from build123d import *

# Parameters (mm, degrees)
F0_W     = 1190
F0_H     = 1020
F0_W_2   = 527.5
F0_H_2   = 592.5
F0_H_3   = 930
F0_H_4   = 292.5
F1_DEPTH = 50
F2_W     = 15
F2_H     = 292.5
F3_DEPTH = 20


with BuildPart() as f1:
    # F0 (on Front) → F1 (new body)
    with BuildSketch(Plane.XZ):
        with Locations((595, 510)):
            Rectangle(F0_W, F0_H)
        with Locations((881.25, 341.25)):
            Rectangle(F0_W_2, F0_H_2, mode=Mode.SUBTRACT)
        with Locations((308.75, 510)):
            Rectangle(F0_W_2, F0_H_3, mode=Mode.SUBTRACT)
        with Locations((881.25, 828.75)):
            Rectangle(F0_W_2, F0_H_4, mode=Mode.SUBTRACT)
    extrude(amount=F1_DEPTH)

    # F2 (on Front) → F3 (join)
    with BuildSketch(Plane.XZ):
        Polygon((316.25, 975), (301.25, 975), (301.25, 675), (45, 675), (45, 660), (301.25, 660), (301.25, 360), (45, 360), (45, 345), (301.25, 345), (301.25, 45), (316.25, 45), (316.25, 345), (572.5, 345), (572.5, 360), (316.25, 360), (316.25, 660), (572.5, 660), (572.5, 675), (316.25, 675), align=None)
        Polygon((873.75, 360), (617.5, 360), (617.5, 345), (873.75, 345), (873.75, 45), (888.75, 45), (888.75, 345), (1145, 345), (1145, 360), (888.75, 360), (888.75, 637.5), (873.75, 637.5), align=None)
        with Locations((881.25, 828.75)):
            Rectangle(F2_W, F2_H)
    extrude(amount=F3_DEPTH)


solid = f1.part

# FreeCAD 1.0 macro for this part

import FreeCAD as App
import Part
import Sketcher
Q = App.Units.Quantity


def add_polygon(sketch, points):
    """Adds a closed chain of lines whose ends are joined by coincident constraints."""
    first, n = sketch.GeometryCount, len(points)
    for a, b in zip(points, points[1:] + points[:1]):
        sketch.addGeometry(Part.LineSegment(App.Vector(*a, 0), App.Vector(*b, 0)), False)
    for i in range(n):
        sketch.addConstraint(Sketcher.Constraint("Coincident", first + i, 2, first + (i + 1) % n, 1))

doc = App.newDocument("Part")
body = doc.addObject("PartDesign::Body", "Body")

# Sketch on XZ plane
sketch1 = body.newObject("Sketcher::SketchObject", "Sketch")
sketch1.AttachmentSupport = (doc.getObject("XZ_Plane"), [""])
sketch1.MapMode = "FlatFace"
add_polygon(sketch1, [(0, 1020), (0, 0), (1190, 0), (1190, 1020)])  # lines 0-3
add_polygon(sketch1, [(1145, 45), (617.5, 45), (617.5, 637.5), (1145, 637.5)])  # lines 4-7
add_polygon(sketch1, [(572.5, 45), (45, 45), (45, 975), (572.5, 975)])  # lines 8-11
add_polygon(sketch1, [(1145, 682.5), (617.5, 682.5), (617.5, 975), (1145, 975)])  # lines 12-15
sketch1.addConstraint(Sketcher.Constraint("Vertical", 0))
sketch1.addConstraint(Sketcher.Constraint("Horizontal", 1))
sketch1.addConstraint(Sketcher.Constraint("Vertical", 2))
sketch1.addConstraint(Sketcher.Constraint("Horizontal", 3))
sketch1.addConstraint(Sketcher.Constraint("Horizontal", 4))
sketch1.addConstraint(Sketcher.Constraint("Vertical", 5))
sketch1.addConstraint(Sketcher.Constraint("Horizontal", 6))
sketch1.addConstraint(Sketcher.Constraint("Vertical", 7))
sketch1.addConstraint(Sketcher.Constraint("Horizontal", 8))
sketch1.addConstraint(Sketcher.Constraint("Vertical", 9))
sketch1.addConstraint(Sketcher.Constraint("Horizontal", 10))
sketch1.addConstraint(Sketcher.Constraint("Vertical", 11))
sketch1.addConstraint(Sketcher.Constraint("Horizontal", 12))
sketch1.addConstraint(Sketcher.Constraint("Vertical", 13))
sketch1.addConstraint(Sketcher.Constraint("Horizontal", 14))
sketch1.addConstraint(Sketcher.Constraint("Vertical", 15))
sketch1.addConstraint(Sketcher.Constraint("Coincident", 0, 2, -1, 1))
sketch1.addConstraint(Sketcher.Constraint("Horizontal", 7, 2, 8, 2))
sketch1.addConstraint(Sketcher.Constraint("Horizontal", 10, 2, 13, 2))
sketch1.addConstraint(Sketcher.Constraint("Vertical", 5, 2, 12, 2))
sketch1.addConstraint(Sketcher.Constraint("Vertical", 7, 2, 14, 2))
sketch1.addConstraint(Sketcher.Constraint("Equal", 6, 8))
sketch1.addConstraint(Sketcher.Constraint("DistanceX", 1, 1, 1, 2, Q("1190 mm")))
sketch1.addConstraint(Sketcher.Constraint("DistanceY", 0, 2, 0, 1, Q("1020 mm")))
sketch1.addConstraint(Sketcher.Constraint("DistanceY", 9, 1, 9, 2, Q("930 mm")))
sketch1.addConstraint(Sketcher.Constraint("DistanceX", 4, 2, 4, 1, Q("527.5 mm")))
sketch1.addConstraint(Sketcher.Constraint("DistanceY", 5, 1, 5, 2, Q("592.5 mm")))
sketch1.addConstraint(Sketcher.Constraint("DistanceY", 13, 1, 13, 2, Q("292.5 mm")))
sketch1.addConstraint(Sketcher.Constraint("DistanceY", -1, 1, 4, 2, Q("45 mm")))
sketch1.addConstraint(Sketcher.Constraint("DistanceX", -1, 1, 6, 2, Q("1145 mm")))
sketch1.addConstraint(Sketcher.Constraint("DistanceX", -1, 1, 8, 2, Q("45 mm")))
pad1 = body.newObject("PartDesign::Pad", "Pad")
pad1.Profile = sketch1
pad1.Length = 50

# Sketch on XZ plane
sketch2 = body.newObject("Sketcher::SketchObject", "Sketch001")
sketch2.AttachmentSupport = (doc.getObject("XZ_Plane"), [""])
sketch2.MapMode = "FlatFace"
add_polygon(sketch2, [(316.25, 975), (301.25, 975), (301.25, 675), (45, 675), (45, 660), (301.25, 660), (301.25, 360), (45, 360), (45, 345), (301.25, 345), (301.25, 45), (316.25, 45), (316.25, 345), (572.5, 345), (572.5, 360), (316.25, 360), (316.25, 660), (572.5, 660), (572.5, 675), (316.25, 675)])  # lines 0-19
add_polygon(sketch2, [(873.75, 360), (617.5, 360), (617.5, 345), (873.75, 345), (873.75, 45), (888.75, 45), (888.75, 345), (1145, 345), (1145, 360), (888.75, 360), (888.75, 637.5), (873.75, 637.5)])  # lines 20-31
add_polygon(sketch2, [(873.75, 975), (873.75, 682.5), (888.75, 682.5), (888.75, 975)])  # lines 32-35
sketch2.addConstraint(Sketcher.Constraint("Horizontal", 0))
sketch2.addConstraint(Sketcher.Constraint("Vertical", 1))
sketch2.addConstraint(Sketcher.Constraint("Horizontal", 2))
sketch2.addConstraint(Sketcher.Constraint("Vertical", 3))
sketch2.addConstraint(Sketcher.Constraint("Horizontal", 4))
sketch2.addConstraint(Sketcher.Constraint("Vertical", 5))
sketch2.addConstraint(Sketcher.Constraint("Horizontal", 6))
sketch2.addConstraint(Sketcher.Constraint("Vertical", 7))
sketch2.addConstraint(Sketcher.Constraint("Horizontal", 8))
sketch2.addConstraint(Sketcher.Constraint("Vertical", 9))
sketch2.addConstraint(Sketcher.Constraint("Horizontal", 10))
sketch2.addConstraint(Sketcher.Constraint("Vertical", 11))
sketch2.addConstraint(Sketcher.Constraint("Horizontal", 12))
sketch2.addConstraint(Sketcher.Constraint("Vertical", 13))
sketch2.addConstraint(Sketcher.Constraint("Horizontal", 14))
sketch2.addConstraint(Sketcher.Constraint("Vertical", 15))
sketch2.addConstraint(Sketcher.Constraint("Horizontal", 16))
sketch2.addConstraint(Sketcher.Constraint("Vertical", 17))
sketch2.addConstraint(Sketcher.Constraint("Horizontal", 18))
sketch2.addConstraint(Sketcher.Constraint("Vertical", 19))
sketch2.addConstraint(Sketcher.Constraint("Horizontal", 20))
sketch2.addConstraint(Sketcher.Constraint("Vertical", 21))
sketch2.addConstraint(Sketcher.Constraint("Horizontal", 22))
sketch2.addConstraint(Sketcher.Constraint("Vertical", 23))
sketch2.addConstraint(Sketcher.Constraint("Horizontal", 24))
sketch2.addConstraint(Sketcher.Constraint("Vertical", 25))
sketch2.addConstraint(Sketcher.Constraint("Horizontal", 26))
sketch2.addConstraint(Sketcher.Constraint("Vertical", 27))
sketch2.addConstraint(Sketcher.Constraint("Horizontal", 28))
sketch2.addConstraint(Sketcher.Constraint("Vertical", 29))
sketch2.addConstraint(Sketcher.Constraint("Horizontal", 30))
sketch2.addConstraint(Sketcher.Constraint("Vertical", 31))
sketch2.addConstraint(Sketcher.Constraint("Vertical", 32))
sketch2.addConstraint(Sketcher.Constraint("Horizontal", 33))
sketch2.addConstraint(Sketcher.Constraint("Vertical", 34))
sketch2.addConstraint(Sketcher.Constraint("Horizontal", 35))
sketch2.addConstraint(Sketcher.Constraint("Horizontal", 8, 2, 11, 2))
sketch2.addConstraint(Sketcher.Constraint("Horizontal", 6, 2, 13, 2))
sketch2.addConstraint(Sketcher.Constraint("Horizontal", 4, 2, 15, 2))
sketch2.addConstraint(Sketcher.Constraint("Horizontal", 2, 2, 17, 2))
sketch2.addConstraint(Sketcher.Constraint("Horizontal", 14, 2, 20, 2))
sketch2.addConstraint(Sketcher.Constraint("Horizontal", 12, 2, 21, 2))
sketch2.addConstraint(Sketcher.Constraint("Horizontal", 10, 2, 23, 2))
sketch2.addConstraint(Sketcher.Constraint("Horizontal", 22, 2, 25, 2))
sketch2.addConstraint(Sketcher.Constraint("Horizontal", 20, 2, 27, 2))
sketch2.addConstraint(Sketcher.Constraint("Horizontal", 19, 2, 34, 2))
sketch2.addConstraint(Sketcher.Constraint("Vertical", 1, 2, 4, 2))
sketch2.addConstraint(Sketcher.Constraint("Vertical", 3, 2, 6, 2))
sketch2.addConstraint(Sketcher.Constraint("Vertical", 5, 2, 8, 2))
sketch2.addConstraint(Sketcher.Constraint("Vertical", 11, 2, 14, 2))
sketch2.addConstraint(Sketcher.Constraint("Vertical", 13, 2, 16, 2))
sketch2.addConstraint(Sketcher.Constraint("Vertical", 15, 2, 18, 2))
sketch2.addConstraint(Sketcher.Constraint("Vertical", 25, 2, 28, 2))
sketch2.addConstraint(Sketcher.Constraint("Vertical", 23, 2, 30, 2))
sketch2.addConstraint(Sketcher.Constraint("Vertical", 31, 2, 32, 2))
sketch2.addConstraint(Sketcher.Constraint("Vertical", 29, 2, 33, 2))
sketch2.addConstraint(Sketcher.Constraint("Equal", 8, 12))
sketch2.addConstraint(Sketcher.Constraint("Equal", 18, 20))
sketch2.addConstraint(Sketcher.Constraint("Equal", 10, 24))
sketch2.addConstraint(Sketcher.Constraint("Equal", 22, 26))
sketch2.addConstraint(Sketcher.Constraint("Equal", 35, 3))
sketch2.addConstraint(Sketcher.Constraint("Equal", 1, 5))
sketch2.addConstraint(Sketcher.Constraint("Equal", 3, 7))
sketch2.addConstraint(Sketcher.Constraint("Equal", 5, 9))
sketch2.addConstraint(Sketcher.Constraint("DistanceX", 0, 2, 0, 1, Q("15 mm")))
sketch2.addConstraint(Sketcher.Constraint("DistanceY", 1, 2, 1, 1, Q("300 mm")))
sketch2.addConstraint(Sketcher.Constraint("DistanceY", 29, 1, 29, 2, Q("277.5 mm")))
sketch2.addConstraint(Sketcher.Constraint("DistanceY", 32, 2, 32, 1, Q("292.5 mm")))
sketch2.addConstraint(Sketcher.Constraint("DistanceY", -1, 1, 0, 2, Q("975 mm")))
sketch2.addConstraint(Sketcher.Constraint("DistanceX", -1, 1, 2, 2, Q("45 mm")))
sketch2.addConstraint(Sketcher.Constraint("DistanceX", -1, 1, 26, 2, Q("1145 mm")))
sketch2.addConstraint(Sketcher.Constraint("DistanceX", 13, 2, 20, 2, Q("45 mm")))
pad2 = body.newObject("PartDesign::Pad", "Pad001")
pad2.Profile = sketch2
pad2.Length = 20

doc.recompute()
